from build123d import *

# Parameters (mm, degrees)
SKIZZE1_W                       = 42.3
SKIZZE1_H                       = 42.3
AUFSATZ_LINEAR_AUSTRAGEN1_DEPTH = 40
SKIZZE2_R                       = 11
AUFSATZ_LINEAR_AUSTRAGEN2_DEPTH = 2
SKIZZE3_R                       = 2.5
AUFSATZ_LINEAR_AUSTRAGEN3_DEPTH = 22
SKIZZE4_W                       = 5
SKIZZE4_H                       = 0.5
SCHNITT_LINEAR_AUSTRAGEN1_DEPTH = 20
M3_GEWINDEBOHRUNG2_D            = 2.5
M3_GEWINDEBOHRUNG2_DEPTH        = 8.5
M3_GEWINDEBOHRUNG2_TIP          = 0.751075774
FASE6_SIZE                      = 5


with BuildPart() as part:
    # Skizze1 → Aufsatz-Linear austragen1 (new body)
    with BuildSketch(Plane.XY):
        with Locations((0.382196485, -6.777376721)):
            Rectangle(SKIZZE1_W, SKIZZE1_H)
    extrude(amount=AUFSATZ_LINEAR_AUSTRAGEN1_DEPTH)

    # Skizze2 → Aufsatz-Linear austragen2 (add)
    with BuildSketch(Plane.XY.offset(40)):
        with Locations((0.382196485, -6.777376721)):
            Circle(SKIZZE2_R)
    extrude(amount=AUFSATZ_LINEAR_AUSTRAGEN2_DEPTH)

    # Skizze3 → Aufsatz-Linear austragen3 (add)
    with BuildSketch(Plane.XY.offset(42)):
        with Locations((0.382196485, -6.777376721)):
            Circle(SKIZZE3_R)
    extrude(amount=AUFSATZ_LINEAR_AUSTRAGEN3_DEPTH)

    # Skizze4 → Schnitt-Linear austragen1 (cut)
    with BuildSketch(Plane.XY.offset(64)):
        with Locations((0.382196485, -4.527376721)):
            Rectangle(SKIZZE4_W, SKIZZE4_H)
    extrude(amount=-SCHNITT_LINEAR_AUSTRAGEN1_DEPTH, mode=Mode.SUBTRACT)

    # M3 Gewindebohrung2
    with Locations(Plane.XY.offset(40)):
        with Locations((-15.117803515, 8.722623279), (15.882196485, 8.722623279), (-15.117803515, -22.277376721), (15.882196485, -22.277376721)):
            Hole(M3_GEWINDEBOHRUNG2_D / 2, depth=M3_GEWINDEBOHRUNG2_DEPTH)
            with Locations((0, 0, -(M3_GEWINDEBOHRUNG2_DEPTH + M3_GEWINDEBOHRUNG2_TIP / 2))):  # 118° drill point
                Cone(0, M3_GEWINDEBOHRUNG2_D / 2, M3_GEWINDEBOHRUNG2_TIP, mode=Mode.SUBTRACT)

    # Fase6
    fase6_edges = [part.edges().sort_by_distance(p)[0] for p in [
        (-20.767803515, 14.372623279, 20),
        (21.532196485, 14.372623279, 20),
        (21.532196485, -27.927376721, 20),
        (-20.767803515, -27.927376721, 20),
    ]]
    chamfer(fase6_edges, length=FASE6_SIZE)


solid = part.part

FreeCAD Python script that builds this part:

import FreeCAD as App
import Part
import Sketcher


def edges_at(feature, points):
    """Names of the edges that pass closest to the given points."""
    edges = feature.Shape.Edges
    near = lambda p: min(range(len(edges)), key=lambda i: edges[i].distToShape(Part.Vertex(*p))[0])
    return sorted({f"Edge{near(p) + 1}" for p in points})

doc = App.newDocument("Part")
body = doc.addObject("PartDesign::Body", "Body")

sketch1 = doc.addObject("Sketcher::SketchObject", "Sketch")
body.addObject(sketch1)
sketch1.AttachmentSupport = (doc.XY_Plane, [""])
sketch1.MapMode = "FlatFace"
sketch1.addGeometry([
    Part.LineSegment(App.Vector(-20.767804, 14.372623, 0), App.Vector(-20.767804, -27.927377, 0)),
    Part.LineSegment(App.Vector(-20.767804, -27.927377, 0), App.Vector(21.532196, -27.927377, 0)),
    Part.LineSegment(App.Vector(21.532196, -27.927377, 0), App.Vector(21.532196, 14.372623, 0)),
    Part.LineSegment(App.Vector(21.532196, 14.372623, 0), App.Vector(-20.767804, 14.372623, 0)),
], False)
sketch1.addConstraint([
    Sketcher.Constraint("Coincident", 0, 2, 1, 1),
    Sketcher.Constraint("Coincident", 1, 2, 2, 1),
    Sketcher.Constraint("Coincident", 2, 2, 3, 1),
    Sketcher.Constraint("Coincident", 3, 2, 0, 1),
    Sketcher.Constraint("Vertical", 0),
    Sketcher.Constraint("Horizontal", 1),
    Sketcher.Constraint("Vertical", 2),
    Sketcher.Constraint("Horizontal", 3),
    Sketcher.Constraint("Equal", 3, 0),
    Sketcher.Constraint("DistanceX", 1, 1, 1, 2, 42.3),
    Sketcher.Constraint("DistanceX", 0, 2, -1, 1, 20.767804),
    Sketcher.Constraint("DistanceY", 0, 2, -1, 1, 27.927377),
])
pad1 = doc.addObject("PartDesign::Pad", "Pad")
body.addObject(pad1)
pad1.Profile = sketch1
pad1.Length = 40

sketch2 = doc.addObject("Sketcher::SketchObject", "Sketch001")
body.addObject(sketch2)
sketch2.AttachmentSupport = (doc.XY_Plane, [""])
sketch2.MapMode = "FlatFace"
sketch2.AttachmentOffset = App.Placement(App.Vector(0, 0, 40), App.Rotation())
sketch2.addGeometry(Part.Circle(App.Vector(0.382196, -6.777377, 0), App.Vector(0, 0, 1), 11), False)
sketch2.addConstraint([
    Sketcher.Constraint("Diameter", 0, 22.0),
    Sketcher.Constraint("DistanceX", -1, 1, 0, 3, 0.382196),
    Sketcher.Constraint("DistanceY", 0, 3, -1, 1, 6.777377),
])
pad2 = doc.addObject("PartDesign::Pad", "Pad001")
body.addObject(pad2)
pad2.Profile = sketch2
pad2.Length = 2

sketch3 = doc.addObject("Sketcher::SketchObject", "Sketch002")
body.addObject(sketch3)
sketch3.AttachmentSupport = (doc.XY_Plane, [""])
sketch3.MapMode = "FlatFace"
sketch3.AttachmentOffset = App.Placement(App.Vector(0, 0, 42), App.Rotation())
sketch3.addGeometry(Part.Circle(App.Vector(0.382196, -6.777377, 0), App.Vector(0, 0, 1), 2.5), False)
sketch3.addConstraint([
    Sketcher.Constraint("Diameter", 0, 5.0),
    Sketcher.Constraint("DistanceX", -1, 1, 0, 3, 0.382196),
    Sketcher.Constraint("DistanceY", 0, 3, -1, 1, 6.777377),
])
pad3 = doc.addObject("PartDesign::Pad", "Pad002")
body.addObject(pad3)
pad3.Profile = sketch3
pad3.Length = 22

sketch4 = doc.addObject("Sketcher::SketchObject", "Sketch003")
body.addObject(sketch4)
sketch4.AttachmentSupport = (doc.XY_Plane, [""])
sketch4.MapMode = "FlatFace"
sketch4.AttachmentOffset = App.Placement(App.Vector(0, 0, 64), App.Rotation())
sketch4.addGeometry([
    Part.LineSegment(App.Vector(-2.117804, -4.277377, 0), App.Vector(-2.117804, -4.777377, 0)),
    Part.LineSegment(App.Vector(-2.117804, -4.777377, 0), App.Vector(2.882196, -4.777377, 0)),
    Part.LineSegment(App.Vector(2.882196, -4.777377, 0), App.Vector(2.882196, -4.277377, 0)),
    Part.LineSegment(App.Vector(2.882196, -4.277377, 0), App.Vector(-2.117804, -4.277377, 0)),
], False)
sketch4.addConstraint([
    Sketcher.Constraint("Coincident", 0, 2, 1, 1),
    Sketcher.Constraint("Coincident", 1, 2, 2, 1),
    Sketcher.Constraint("Coincident", 2, 2, 3, 1),
    Sketcher.Constraint("Coincident", 3, 2, 0, 1),
    Sketcher.Constraint("Vertical", 0),
    Sketcher.Constraint("Horizontal", 1),
    Sketcher.Constraint("Vertical", 2),
    Sketcher.Constraint("Horizontal", 3),
    Sketcher.Constraint("DistanceX", 1, 1, 1, 2, 5.0),
    Sketcher.Constraint("DistanceY", 0, 2, 0, 1, 0.5),
    Sketcher.Constraint("DistanceX", 0, 2, -1, 1, 2.117804),
    Sketcher.Constraint("DistanceY", 0, 2, -1, 1, 4.777377),
])
pocket1 = doc.addObject("PartDesign::Pocket", "Pocket")
body.addObject(pocket1)
pocket1.Profile = sketch4
pocket1.Length = 20

sketch5 = doc.addObject("Sketcher::SketchObject", "Sketch004")
body.addObject(sketch5)
sketch5.AttachmentSupport = (doc.XY_Plane, [""])
sketch5.MapMode = "FlatFace"
sketch5.AttachmentOffset = App.Placement(App.Vector(0, 0, 40), App.Rotation())
sketch5.addGeometry([
    Part.Circle(App.Vector(-15.117804, 8.722623, 0), App.Vector(0, 0, 1), 1.25),
    Part.Circle(App.Vector(15.882196, 8.722623, 0), App.Vector(0, 0, 1), 1.25),
    Part.Circle(App.Vector(-15.117804, -22.277377, 0), App.Vector(0, 0, 1), 1.25),
    Part.Circle(App.Vector(15.882196, -22.277377, 0), App.Vector(0, 0, 1), 1.25),
], False)
sketch5.addConstraint([
    Sketcher.Constraint("Equal", 0, 1),
    Sketcher.Constraint("Equal", 1, 2),
    Sketcher.Constraint("Equal", 2, 3),
    Sketcher.Constraint("Horizontal", 0, 3, 1, 3),
    Sketcher.Constraint("Horizontal", 2, 3, 3, 3),
    Sketcher.Constraint("Vertical", 0, 3, 2, 3),
    Sketcher.Constraint("Vertical", 1, 3, 3, 3),
    Sketcher.Constraint("Diameter", 0, 2.5),
    Sketcher.Constraint("DistanceX", 0, 3, 1, 3, 31.0),
    Sketcher.Constraint("DistanceY", 2, 3, 0, 3, 31.0),
    Sketcher.Constraint("DistanceX", 0, 3, -1, 1, 15.117804),
    Sketcher.Constraint("DistanceY", -1, 1, 0, 3, 8.722623),
])
doc.recompute()
hole = doc.addObject("PartDesign::Hole", "Hole")
body.addObject(hole)
hole.Profile = sketch5
hole.ThreadType = "None"
hole.Diameter = 2.5
hole.DepthType = "Dimension"
hole.Depth = 8.5
hole.DrillPoint = "Angled"
hole.DrillPointAngle = 118
doc.recompute()

chamfer = doc.addObject("PartDesign::Chamfer", "Chamfer")
body.addObject(chamfer)
chamfer.Base = (hole, edges_at(hole, [
    (-20.768, 14.373, 20),
    (21.532, 14.373, 20),
    (21.532, -27.927, 20),
    (-20.768, -27.927, 20),
]))
chamfer.Size = 5

doc.recompute()
